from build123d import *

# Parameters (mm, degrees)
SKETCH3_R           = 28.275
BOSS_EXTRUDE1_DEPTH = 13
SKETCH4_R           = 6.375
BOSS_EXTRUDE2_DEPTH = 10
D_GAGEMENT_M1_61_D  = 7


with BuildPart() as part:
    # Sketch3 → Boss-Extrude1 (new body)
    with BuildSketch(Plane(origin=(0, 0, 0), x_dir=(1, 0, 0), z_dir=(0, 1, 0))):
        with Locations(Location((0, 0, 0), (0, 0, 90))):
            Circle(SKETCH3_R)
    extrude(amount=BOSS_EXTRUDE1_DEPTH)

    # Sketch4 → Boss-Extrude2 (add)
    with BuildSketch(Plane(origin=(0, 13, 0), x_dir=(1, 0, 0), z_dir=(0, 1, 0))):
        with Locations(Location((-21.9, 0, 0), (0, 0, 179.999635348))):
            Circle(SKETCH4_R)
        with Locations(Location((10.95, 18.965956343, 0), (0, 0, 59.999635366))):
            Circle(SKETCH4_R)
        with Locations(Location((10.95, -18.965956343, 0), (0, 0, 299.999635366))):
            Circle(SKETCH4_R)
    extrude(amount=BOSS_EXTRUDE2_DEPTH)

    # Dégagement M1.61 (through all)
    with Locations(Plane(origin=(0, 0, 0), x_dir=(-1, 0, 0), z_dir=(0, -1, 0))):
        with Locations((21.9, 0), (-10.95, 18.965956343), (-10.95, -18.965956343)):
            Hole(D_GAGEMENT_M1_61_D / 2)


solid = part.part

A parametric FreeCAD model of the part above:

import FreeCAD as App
import Part
import Sketcher

V = App.Vector
Q = App.Units.Quantity

doc = App.newDocument("Part")
body = doc.addObject("PartDesign::Body", "Body")

# Sketch on XZ plane
sketch1 = body.newObject("Sketcher::SketchObject", "Sketch")
sketch1.AttachmentSupport = (doc.getObject("XZ_Plane"), [""])
sketch1.MapMode = "FlatFace"
sketch1.addGeometry(Part.Circle(V(0, 0, 0), V(0, 0, 1), 28.275), False)
sketch1.addConstraint([
    Sketcher.Constraint("Coincident", 0, 3, -1, 1),
    Sketcher.Constraint("Diameter", 0, Q("56.55 mm")),
])
pad1 = body.newObject("PartDesign::Pad", "Pad")
pad1.Profile = sketch1
pad1.Length = 13
pad1.Reversed = True

# Sketch on XZ plane
sketch2 = body.newObject("Sketcher::SketchObject", "Sketch001")
sketch2.AttachmentSupport = (doc.getObject("XZ_Plane"), [""])
sketch2.MapMode = "FlatFace"
sketch2.AttachmentOffset = App.Placement(V(0, 0, -13), App.Rotation())
sketch2.addGeometry([
    Part.Circle(V(-21.9, 0, 0), V(0, 0, 1), 6.375),
    Part.Circle(V(10.95, -18.965956, 0), V(0, 0, 1), 6.375),
    Part.Circle(V(10.95, 18.965956, 0), V(0, 0, 1), 6.375),
], False)
sketch2.addConstraint([
    Sketcher.Constraint("Equal", 0, 1),
    Sketcher.Constraint("Equal", 1, 2),
    Sketcher.Constraint("Symmetric", 1, 3, 2, 3, -1),
    Sketcher.Constraint("PointOnObject", 0, 3, -1),
    Sketcher.Constraint("Diameter", 0, Q("12.75 mm")),
    Sketcher.Constraint("DistanceX", 0, 3, -1, 1, Q("21.9 mm")),
    Sketcher.Constraint("DistanceX", -1, 1, 1, 3, Q("10.95 mm")),
    Sketcher.Constraint("DistanceY", 1, 3, -1, 1, Q("18.965956 mm")),
])
pad2 = body.newObject("PartDesign::Pad", "Pad001")
pad2.Profile = sketch2
pad2.Length = 10
pad2.Reversed = True

# Sketch on XZ plane
sketch3 = body.newObject("Sketcher::SketchObject", "Sketch002")
sketch3.AttachmentSupport = (doc.getObject("XZ_Plane"), [""])
sketch3.MapMode = "FlatFace"
sketch3.addGeometry([
    Part.Circle(V(-21.9, 0, 0), V(0, 0, 1), 3.5),
    Part.Circle(V(10.95, -18.965956, 0), V(0, 0, 1), 3.5),
    Part.Circle(V(10.95, 18.965956, 0), V(0, 0, 1), 3.5),
], False)
sketch3.addConstraint([
    Sketcher.Constraint("Equal", 0, 1),
    Sketcher.Constraint("Equal", 1, 2),
    Sketcher.Constraint("Symmetric", 1, 3, 2, 3, -1),
    Sketcher.Constraint("PointOnObject", 0, 3, -1),
    Sketcher.Constraint("Diameter", 0, Q("7 mm")),
    Sketcher.Constraint("DistanceX", 0, 3, -1, 1, Q("21.9 mm")),
    Sketcher.Constraint("DistanceX", -1, 1, 1, 3, Q("10.95 mm")),
    Sketcher.Constraint("DistanceY", 1, 3, -1, 1, Q("18.965956 mm")),
])
doc.recompute()
hole = body.newObject("PartDesign::Hole", "Hole")
hole.Profile = sketch3
hole.ThreadType = "None"
hole.Diameter = 7
hole.DepthType = "ThroughAll"

doc.recompute()
